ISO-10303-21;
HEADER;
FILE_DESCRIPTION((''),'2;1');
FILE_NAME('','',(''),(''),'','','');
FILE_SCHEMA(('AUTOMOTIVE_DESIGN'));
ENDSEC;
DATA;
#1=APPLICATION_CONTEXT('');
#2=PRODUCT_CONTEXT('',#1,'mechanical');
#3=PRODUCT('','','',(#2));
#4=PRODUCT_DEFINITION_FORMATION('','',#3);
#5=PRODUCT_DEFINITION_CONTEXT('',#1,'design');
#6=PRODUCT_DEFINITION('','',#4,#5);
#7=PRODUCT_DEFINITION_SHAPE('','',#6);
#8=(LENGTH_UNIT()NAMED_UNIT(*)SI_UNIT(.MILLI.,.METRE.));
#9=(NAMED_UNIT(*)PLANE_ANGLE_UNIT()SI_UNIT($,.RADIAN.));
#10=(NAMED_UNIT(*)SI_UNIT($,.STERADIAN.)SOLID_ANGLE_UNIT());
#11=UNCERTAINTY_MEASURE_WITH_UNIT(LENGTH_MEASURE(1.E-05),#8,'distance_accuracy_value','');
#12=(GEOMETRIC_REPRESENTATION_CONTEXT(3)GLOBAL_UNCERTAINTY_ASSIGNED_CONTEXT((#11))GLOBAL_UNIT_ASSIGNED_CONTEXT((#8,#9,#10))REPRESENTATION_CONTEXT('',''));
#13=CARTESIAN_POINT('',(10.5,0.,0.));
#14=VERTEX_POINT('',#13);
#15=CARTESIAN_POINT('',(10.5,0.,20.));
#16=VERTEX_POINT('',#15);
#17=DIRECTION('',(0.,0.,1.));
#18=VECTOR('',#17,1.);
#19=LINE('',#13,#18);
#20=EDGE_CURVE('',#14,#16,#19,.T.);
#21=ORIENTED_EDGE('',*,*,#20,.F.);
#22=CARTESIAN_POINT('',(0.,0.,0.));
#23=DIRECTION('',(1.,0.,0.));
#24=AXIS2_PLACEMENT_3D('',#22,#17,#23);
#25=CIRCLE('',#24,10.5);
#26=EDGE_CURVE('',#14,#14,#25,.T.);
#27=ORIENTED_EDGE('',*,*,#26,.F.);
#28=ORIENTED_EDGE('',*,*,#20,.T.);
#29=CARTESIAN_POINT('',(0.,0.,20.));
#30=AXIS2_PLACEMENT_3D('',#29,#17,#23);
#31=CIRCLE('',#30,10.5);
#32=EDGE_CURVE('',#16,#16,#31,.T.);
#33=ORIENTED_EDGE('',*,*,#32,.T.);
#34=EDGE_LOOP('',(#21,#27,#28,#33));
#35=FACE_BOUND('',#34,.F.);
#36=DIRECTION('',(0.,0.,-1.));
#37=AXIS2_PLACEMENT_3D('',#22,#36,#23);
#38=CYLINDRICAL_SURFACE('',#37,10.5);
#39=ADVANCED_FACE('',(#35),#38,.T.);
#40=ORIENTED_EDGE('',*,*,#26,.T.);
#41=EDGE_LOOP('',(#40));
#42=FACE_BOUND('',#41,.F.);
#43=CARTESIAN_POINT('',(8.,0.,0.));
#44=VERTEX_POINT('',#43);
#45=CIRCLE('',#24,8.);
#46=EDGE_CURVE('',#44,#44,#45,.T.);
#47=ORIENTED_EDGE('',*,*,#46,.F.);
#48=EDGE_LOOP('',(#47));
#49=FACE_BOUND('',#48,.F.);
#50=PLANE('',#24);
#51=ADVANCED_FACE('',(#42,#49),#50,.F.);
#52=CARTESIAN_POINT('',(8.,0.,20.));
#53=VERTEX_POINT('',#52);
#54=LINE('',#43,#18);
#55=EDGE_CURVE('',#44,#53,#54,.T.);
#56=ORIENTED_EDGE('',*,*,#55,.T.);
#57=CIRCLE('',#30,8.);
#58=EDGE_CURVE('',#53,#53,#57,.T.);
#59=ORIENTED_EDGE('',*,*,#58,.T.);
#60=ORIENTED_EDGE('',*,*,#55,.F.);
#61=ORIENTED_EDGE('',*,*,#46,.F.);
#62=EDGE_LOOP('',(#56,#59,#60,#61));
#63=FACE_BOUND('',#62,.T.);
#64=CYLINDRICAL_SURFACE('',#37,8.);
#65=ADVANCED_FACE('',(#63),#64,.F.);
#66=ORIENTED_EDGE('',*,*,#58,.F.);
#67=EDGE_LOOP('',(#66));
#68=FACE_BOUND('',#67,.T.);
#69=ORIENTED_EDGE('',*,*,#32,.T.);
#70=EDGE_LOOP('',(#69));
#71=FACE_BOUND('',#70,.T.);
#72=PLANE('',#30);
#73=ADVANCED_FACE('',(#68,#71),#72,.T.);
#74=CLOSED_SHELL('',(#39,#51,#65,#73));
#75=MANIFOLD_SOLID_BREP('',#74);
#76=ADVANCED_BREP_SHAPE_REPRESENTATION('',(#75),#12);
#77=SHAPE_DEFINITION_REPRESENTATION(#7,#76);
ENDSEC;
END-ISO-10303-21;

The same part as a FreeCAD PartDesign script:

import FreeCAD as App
import Part
import Sketcher

V = App.Vector

doc = App.newDocument("Part")
params = doc.addObject("Spreadsheet::Sheet", "Params")
for row, (alias, value) in enumerate([
    ("sketch1_diameter", "21 mm"),
    ("sketch1_diameter2", "16 mm"),
    ("pad1_length", "20 mm"),
], start=1):
    params.set(f"A{row}", alias)
    params.set(f"B{row}", "=" + value)
    params.setAlias(f"B{row}", alias)

body = doc.addObject("PartDesign::Body", "Body")

sketch1 = doc.addObject("Sketcher::SketchObject", "Sketch")
body.addObject(sketch1)
sketch1.AttachmentSupport = (doc.XY_Plane, [""])
sketch1.MapMode = "FlatFace"
sketch1.addGeometry([
    Part.Circle(V(0, 0, 0), V(0, 0, 1), 10),
    Part.Circle(V(0, 0, 0), V(0, 0, 1), 8),
], False)
sketch1.addConstraint([
    Sketcher.Constraint("Coincident", 0, 3, -1, 1),
    Sketcher.Constraint("Coincident", 1, 3, -1, 1),
    Sketcher.Constraint("Diameter", 0, 21.0),
    Sketcher.Constraint("Diameter", 1, 16.0),
])
sketch1.setExpression("Constraints[2]", "Params.sketch1_diameter")
sketch1.setExpression("Constraints[3]", "Params.sketch1_diameter2")
pad1 = doc.addObject("PartDesign::Pad", "Pad")
body.addObject(pad1)
pad1.Profile = sketch1
pad1.setExpression("Length", "Params.pad1_length")

doc.recompute()
